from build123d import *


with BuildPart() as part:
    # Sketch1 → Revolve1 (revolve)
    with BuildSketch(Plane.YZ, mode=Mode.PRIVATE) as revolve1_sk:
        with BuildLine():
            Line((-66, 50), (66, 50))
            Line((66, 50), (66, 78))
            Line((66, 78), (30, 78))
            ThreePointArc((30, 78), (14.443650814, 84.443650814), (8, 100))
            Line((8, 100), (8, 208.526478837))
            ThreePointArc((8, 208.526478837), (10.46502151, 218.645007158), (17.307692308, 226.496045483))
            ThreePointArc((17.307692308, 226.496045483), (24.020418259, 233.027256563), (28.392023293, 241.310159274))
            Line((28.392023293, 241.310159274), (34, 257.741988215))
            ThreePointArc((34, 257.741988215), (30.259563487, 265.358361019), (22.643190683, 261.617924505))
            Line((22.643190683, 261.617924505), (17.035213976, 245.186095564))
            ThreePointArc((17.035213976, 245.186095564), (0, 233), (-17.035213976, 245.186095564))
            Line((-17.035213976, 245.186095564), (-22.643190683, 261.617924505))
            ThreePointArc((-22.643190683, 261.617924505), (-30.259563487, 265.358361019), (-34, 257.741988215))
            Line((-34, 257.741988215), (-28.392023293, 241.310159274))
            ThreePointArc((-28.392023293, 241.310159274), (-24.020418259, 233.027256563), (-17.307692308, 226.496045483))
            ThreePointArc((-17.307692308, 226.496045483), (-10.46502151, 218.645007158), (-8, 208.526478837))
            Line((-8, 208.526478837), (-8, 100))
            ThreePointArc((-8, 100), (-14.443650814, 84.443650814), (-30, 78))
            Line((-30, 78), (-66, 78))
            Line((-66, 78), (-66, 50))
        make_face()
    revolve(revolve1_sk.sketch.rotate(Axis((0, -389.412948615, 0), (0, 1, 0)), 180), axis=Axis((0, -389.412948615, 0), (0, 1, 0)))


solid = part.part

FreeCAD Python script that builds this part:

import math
import FreeCAD as App
import Part
import Sketcher

V = App.Vector
Q = App.Units.Quantity

doc = App.newDocument("Part")
body = doc.addObject("PartDesign::Body", "Body")

# Sketch on YZ plane
sketch1 = doc.addObject("Sketcher::SketchObject", "Sketch")
body.addObject(sketch1)
sketch1.AttachmentSupport = (doc.YZ_Plane, [""])
sketch1.MapMode = "FlatFace"
sketch1.addGeometry(Part.LineSegment(V(-66, 50, 0), V(66, 50, 0)), False)
sketch1.addGeometry(Part.LineSegment(V(66, 50, 0), V(66, 78, 0)), False)
sketch1.addGeometry(Part.LineSegment(V(66, 78, 0), V(30, 78, 0)), False)
sketch1.addGeometry(Part.ArcOfCircle(Part.Circle(V(30, 100, 0), V(0, 0, 1), 22), math.radians(180), math.radians(270)), False)
sketch1.addGeometry(Part.LineSegment(V(8, 100, 0), V(8, 208.526479, 0)), False)
sketch1.addGeometry(Part.ArcOfCircle(Part.Circle(V(30, 208.526479, 0), V(0, 0, 1), 22), math.radians(125.234418), math.radians(180)), False)
sketch1.addGeometry(Part.ArcOfCircle(Part.Circle(V(0, 251, 0), V(0, 0, 1), 30), math.radians(-54.765582), math.radians(-18.844128)), False)
sketch1.addGeometry(Part.LineSegment(V(28.392023, 241.310159, 0), V(34, 257.741988, 0)), False)
sketch1.addGeometry(Part.ArcOfCircle(Part.Circle(V(28.321595, 259.679956, 0), V(0, 0, 1), 6), math.radians(-18.844128), math.radians(161.155872)), False)
sketch1.addGeometry(Part.LineSegment(V(22.643191, 261.617925, 0), V(17.035214, 245.186096, 0)), False)
sketch1.addGeometry(Part.ArcOfCircle(Part.Circle(V(0, 251, 0), V(0, 0, 1), 18), math.radians(-161.155872), math.radians(-18.844128)), False)
sketch1.addGeometry(Part.LineSegment(V(-17.035214, 245.186096, 0), V(-22.643191, 261.617925, 0)), False)
sketch1.addGeometry(Part.ArcOfCircle(Part.Circle(V(-28.321595, 259.679956, 0), V(0, 0, 1), 6), math.radians(18.844128), math.radians(198.844128)), False)
sketch1.addGeometry(Part.LineSegment(V(-34, 257.741988, 0), V(-28.392023, 241.310159, 0)), False)
sketch1.addGeometry(Part.ArcOfCircle(Part.Circle(V(0, 251, 0), V(0, 0, 1), 30), math.radians(-161.155872), math.radians(-125.234418)), False)
sketch1.addGeometry(Part.ArcOfCircle(Part.Circle(V(-30, 208.526479, 0), V(0, 0, 1), 22), math.radians(0), math.radians(54.765582)), False)
sketch1.addGeometry(Part.LineSegment(V(-8, 208.526479, 0), V(-8, 100, 0)), False)
sketch1.addGeometry(Part.ArcOfCircle(Part.Circle(V(-30, 100, 0), V(0, 0, 1), 22), math.radians(-90), math.radians(0)), False)
sketch1.addGeometry(Part.LineSegment(V(-30, 78, 0), V(-66, 78, 0)), False)
sketch1.addGeometry(Part.LineSegment(V(-66, 78, 0), V(-66, 50, 0)), False)
sketch1.addConstraint(Sketcher.Constraint("Coincident", 0, 2, 1, 1))
sketch1.addConstraint(Sketcher.Constraint("Coincident", 1, 2, 2, 1))
sketch1.addConstraint(Sketcher.Constraint("Tangent", 2, 2, 3, 2))
sketch1.addConstraint(Sketcher.Constraint("Tangent", 3, 1, 4, 1))
sketch1.addConstraint(Sketcher.Constraint("Tangent", 4, 2, 5, 2))
sketch1.addConstraint(Sketcher.Constraint("Tangent", 5, 1, 6, 1))
sketch1.addConstraint(Sketcher.Constraint("Tangent", 6, 2, 7, 1))
sketch1.addConstraint(Sketcher.Constraint("Tangent", 7, 2, 8, 1))
sketch1.addConstraint(Sketcher.Constraint("Tangent", 8, 2, 9, 1))
sketch1.addConstraint(Sketcher.Constraint("Tangent", 9, 2, 10, 2))
sketch1.addConstraint(Sketcher.Constraint("Tangent", 10, 1, 11, 1))
sketch1.addConstraint(Sketcher.Constraint("Tangent", 11, 2, 12, 1))
sketch1.addConstraint(Sketcher.Constraint("Tangent", 12, 2, 13, 1))
sketch1.addConstraint(Sketcher.Constraint("Tangent", 13, 2, 14, 1))
sketch1.addConstraint(Sketcher.Constraint("Tangent", 14, 2, 15, 2))
sketch1.addConstraint(Sketcher.Constraint("Tangent", 15, 1, 16, 1))
sketch1.addConstraint(Sketcher.Constraint("Tangent", 16, 2, 17, 2))
sketch1.addConstraint(Sketcher.Constraint("Tangent", 17, 1, 18, 1))
sketch1.addConstraint(Sketcher.Constraint("Coincident", 18, 2, 19, 1))
sketch1.addConstraint(Sketcher.Constraint("Coincident", 19, 2, 0, 1))
sketch1.addConstraint(Sketcher.Constraint("Horizontal", 0))
sketch1.addConstraint(Sketcher.Constraint("Vertical", 1))
sketch1.addConstraint(Sketcher.Constraint("Horizontal", 2))
sketch1.addConstraint(Sketcher.Constraint("Vertical", 4))
sketch1.addConstraint(Sketcher.Constraint("Vertical", 16))
sketch1.addConstraint(Sketcher.Constraint("Horizontal", 18))
sketch1.addConstraint(Sketcher.Constraint("Vertical", 19))
sketch1.addConstraint(Sketcher.Constraint("Coincident", 10, 3, 6, 3))
sketch1.addConstraint(Sketcher.Constraint("Coincident", 14, 3, 6, 3))
sketch1.addConstraint(Sketcher.Constraint("Equal", 3, 5))
sketch1.addConstraint(Sketcher.Constraint("Equal", 8, 12))
sketch1.addConstraint(Sketcher.Constraint("Equal", 6, 14))
sketch1.addConstraint(Sketcher.Constraint("Equal", 5, 15))
sketch1.addConstraint(Sketcher.Constraint("Equal", 15, 17))
sketch1.addConstraint(Sketcher.Constraint("Symmetric", 8, 3, 12, 3, -2))
sketch1.addConstraint(Sketcher.Constraint("Symmetric", 5, 3, 15, 3, -2))
sketch1.addConstraint(Sketcher.Constraint("Symmetric", 1, 2, 18, 2, -2))
sketch1.addConstraint(Sketcher.Constraint("Parallel", 7, 9))
sketch1.addConstraint(Sketcher.Constraint("Radius", 3, Q("22 mm")))
sketch1.addConstraint(Sketcher.Constraint("Radius", 6, Q("30 mm")))
sketch1.addConstraint(Sketcher.Constraint("Radius", 8, Q("6 mm")))
sketch1.addConstraint(Sketcher.Constraint("DistanceX", 0, 1, 0, 2, Q("132 mm")))
sketch1.addConstraint(Sketcher.Constraint("DistanceX", 2, 2, 2, 1, Q("36 mm")))
sketch1.addConstraint(Sketcher.Constraint("DistanceY", 1, 1, 1, 2, Q("28 mm")))
sketch1.addConstraint(Sketcher.Constraint("DistanceY", -1, 1, 3, 3, Q("100 mm")))
sketch1.addConstraint(Sketcher.Constraint("DistanceY", -1, 1, 6, 3, Q("251 mm")))
sketch1.addConstraint(Sketcher.Constraint("DistanceX", -1, 1, 7, 2, Q("34 mm")))
sketch1.addConstraint(Sketcher.Constraint("DistanceY", -1, 1, 6, 2, Q("241.310159 mm")))
revolution = doc.addObject("PartDesign::Revolution", "Revolution")
body.addObject(revolution)
revolution.Profile = sketch1
revolution.ReferenceAxis = (sketch1, ["H_Axis"])
revolution.Angle = 360

doc.recompute()
